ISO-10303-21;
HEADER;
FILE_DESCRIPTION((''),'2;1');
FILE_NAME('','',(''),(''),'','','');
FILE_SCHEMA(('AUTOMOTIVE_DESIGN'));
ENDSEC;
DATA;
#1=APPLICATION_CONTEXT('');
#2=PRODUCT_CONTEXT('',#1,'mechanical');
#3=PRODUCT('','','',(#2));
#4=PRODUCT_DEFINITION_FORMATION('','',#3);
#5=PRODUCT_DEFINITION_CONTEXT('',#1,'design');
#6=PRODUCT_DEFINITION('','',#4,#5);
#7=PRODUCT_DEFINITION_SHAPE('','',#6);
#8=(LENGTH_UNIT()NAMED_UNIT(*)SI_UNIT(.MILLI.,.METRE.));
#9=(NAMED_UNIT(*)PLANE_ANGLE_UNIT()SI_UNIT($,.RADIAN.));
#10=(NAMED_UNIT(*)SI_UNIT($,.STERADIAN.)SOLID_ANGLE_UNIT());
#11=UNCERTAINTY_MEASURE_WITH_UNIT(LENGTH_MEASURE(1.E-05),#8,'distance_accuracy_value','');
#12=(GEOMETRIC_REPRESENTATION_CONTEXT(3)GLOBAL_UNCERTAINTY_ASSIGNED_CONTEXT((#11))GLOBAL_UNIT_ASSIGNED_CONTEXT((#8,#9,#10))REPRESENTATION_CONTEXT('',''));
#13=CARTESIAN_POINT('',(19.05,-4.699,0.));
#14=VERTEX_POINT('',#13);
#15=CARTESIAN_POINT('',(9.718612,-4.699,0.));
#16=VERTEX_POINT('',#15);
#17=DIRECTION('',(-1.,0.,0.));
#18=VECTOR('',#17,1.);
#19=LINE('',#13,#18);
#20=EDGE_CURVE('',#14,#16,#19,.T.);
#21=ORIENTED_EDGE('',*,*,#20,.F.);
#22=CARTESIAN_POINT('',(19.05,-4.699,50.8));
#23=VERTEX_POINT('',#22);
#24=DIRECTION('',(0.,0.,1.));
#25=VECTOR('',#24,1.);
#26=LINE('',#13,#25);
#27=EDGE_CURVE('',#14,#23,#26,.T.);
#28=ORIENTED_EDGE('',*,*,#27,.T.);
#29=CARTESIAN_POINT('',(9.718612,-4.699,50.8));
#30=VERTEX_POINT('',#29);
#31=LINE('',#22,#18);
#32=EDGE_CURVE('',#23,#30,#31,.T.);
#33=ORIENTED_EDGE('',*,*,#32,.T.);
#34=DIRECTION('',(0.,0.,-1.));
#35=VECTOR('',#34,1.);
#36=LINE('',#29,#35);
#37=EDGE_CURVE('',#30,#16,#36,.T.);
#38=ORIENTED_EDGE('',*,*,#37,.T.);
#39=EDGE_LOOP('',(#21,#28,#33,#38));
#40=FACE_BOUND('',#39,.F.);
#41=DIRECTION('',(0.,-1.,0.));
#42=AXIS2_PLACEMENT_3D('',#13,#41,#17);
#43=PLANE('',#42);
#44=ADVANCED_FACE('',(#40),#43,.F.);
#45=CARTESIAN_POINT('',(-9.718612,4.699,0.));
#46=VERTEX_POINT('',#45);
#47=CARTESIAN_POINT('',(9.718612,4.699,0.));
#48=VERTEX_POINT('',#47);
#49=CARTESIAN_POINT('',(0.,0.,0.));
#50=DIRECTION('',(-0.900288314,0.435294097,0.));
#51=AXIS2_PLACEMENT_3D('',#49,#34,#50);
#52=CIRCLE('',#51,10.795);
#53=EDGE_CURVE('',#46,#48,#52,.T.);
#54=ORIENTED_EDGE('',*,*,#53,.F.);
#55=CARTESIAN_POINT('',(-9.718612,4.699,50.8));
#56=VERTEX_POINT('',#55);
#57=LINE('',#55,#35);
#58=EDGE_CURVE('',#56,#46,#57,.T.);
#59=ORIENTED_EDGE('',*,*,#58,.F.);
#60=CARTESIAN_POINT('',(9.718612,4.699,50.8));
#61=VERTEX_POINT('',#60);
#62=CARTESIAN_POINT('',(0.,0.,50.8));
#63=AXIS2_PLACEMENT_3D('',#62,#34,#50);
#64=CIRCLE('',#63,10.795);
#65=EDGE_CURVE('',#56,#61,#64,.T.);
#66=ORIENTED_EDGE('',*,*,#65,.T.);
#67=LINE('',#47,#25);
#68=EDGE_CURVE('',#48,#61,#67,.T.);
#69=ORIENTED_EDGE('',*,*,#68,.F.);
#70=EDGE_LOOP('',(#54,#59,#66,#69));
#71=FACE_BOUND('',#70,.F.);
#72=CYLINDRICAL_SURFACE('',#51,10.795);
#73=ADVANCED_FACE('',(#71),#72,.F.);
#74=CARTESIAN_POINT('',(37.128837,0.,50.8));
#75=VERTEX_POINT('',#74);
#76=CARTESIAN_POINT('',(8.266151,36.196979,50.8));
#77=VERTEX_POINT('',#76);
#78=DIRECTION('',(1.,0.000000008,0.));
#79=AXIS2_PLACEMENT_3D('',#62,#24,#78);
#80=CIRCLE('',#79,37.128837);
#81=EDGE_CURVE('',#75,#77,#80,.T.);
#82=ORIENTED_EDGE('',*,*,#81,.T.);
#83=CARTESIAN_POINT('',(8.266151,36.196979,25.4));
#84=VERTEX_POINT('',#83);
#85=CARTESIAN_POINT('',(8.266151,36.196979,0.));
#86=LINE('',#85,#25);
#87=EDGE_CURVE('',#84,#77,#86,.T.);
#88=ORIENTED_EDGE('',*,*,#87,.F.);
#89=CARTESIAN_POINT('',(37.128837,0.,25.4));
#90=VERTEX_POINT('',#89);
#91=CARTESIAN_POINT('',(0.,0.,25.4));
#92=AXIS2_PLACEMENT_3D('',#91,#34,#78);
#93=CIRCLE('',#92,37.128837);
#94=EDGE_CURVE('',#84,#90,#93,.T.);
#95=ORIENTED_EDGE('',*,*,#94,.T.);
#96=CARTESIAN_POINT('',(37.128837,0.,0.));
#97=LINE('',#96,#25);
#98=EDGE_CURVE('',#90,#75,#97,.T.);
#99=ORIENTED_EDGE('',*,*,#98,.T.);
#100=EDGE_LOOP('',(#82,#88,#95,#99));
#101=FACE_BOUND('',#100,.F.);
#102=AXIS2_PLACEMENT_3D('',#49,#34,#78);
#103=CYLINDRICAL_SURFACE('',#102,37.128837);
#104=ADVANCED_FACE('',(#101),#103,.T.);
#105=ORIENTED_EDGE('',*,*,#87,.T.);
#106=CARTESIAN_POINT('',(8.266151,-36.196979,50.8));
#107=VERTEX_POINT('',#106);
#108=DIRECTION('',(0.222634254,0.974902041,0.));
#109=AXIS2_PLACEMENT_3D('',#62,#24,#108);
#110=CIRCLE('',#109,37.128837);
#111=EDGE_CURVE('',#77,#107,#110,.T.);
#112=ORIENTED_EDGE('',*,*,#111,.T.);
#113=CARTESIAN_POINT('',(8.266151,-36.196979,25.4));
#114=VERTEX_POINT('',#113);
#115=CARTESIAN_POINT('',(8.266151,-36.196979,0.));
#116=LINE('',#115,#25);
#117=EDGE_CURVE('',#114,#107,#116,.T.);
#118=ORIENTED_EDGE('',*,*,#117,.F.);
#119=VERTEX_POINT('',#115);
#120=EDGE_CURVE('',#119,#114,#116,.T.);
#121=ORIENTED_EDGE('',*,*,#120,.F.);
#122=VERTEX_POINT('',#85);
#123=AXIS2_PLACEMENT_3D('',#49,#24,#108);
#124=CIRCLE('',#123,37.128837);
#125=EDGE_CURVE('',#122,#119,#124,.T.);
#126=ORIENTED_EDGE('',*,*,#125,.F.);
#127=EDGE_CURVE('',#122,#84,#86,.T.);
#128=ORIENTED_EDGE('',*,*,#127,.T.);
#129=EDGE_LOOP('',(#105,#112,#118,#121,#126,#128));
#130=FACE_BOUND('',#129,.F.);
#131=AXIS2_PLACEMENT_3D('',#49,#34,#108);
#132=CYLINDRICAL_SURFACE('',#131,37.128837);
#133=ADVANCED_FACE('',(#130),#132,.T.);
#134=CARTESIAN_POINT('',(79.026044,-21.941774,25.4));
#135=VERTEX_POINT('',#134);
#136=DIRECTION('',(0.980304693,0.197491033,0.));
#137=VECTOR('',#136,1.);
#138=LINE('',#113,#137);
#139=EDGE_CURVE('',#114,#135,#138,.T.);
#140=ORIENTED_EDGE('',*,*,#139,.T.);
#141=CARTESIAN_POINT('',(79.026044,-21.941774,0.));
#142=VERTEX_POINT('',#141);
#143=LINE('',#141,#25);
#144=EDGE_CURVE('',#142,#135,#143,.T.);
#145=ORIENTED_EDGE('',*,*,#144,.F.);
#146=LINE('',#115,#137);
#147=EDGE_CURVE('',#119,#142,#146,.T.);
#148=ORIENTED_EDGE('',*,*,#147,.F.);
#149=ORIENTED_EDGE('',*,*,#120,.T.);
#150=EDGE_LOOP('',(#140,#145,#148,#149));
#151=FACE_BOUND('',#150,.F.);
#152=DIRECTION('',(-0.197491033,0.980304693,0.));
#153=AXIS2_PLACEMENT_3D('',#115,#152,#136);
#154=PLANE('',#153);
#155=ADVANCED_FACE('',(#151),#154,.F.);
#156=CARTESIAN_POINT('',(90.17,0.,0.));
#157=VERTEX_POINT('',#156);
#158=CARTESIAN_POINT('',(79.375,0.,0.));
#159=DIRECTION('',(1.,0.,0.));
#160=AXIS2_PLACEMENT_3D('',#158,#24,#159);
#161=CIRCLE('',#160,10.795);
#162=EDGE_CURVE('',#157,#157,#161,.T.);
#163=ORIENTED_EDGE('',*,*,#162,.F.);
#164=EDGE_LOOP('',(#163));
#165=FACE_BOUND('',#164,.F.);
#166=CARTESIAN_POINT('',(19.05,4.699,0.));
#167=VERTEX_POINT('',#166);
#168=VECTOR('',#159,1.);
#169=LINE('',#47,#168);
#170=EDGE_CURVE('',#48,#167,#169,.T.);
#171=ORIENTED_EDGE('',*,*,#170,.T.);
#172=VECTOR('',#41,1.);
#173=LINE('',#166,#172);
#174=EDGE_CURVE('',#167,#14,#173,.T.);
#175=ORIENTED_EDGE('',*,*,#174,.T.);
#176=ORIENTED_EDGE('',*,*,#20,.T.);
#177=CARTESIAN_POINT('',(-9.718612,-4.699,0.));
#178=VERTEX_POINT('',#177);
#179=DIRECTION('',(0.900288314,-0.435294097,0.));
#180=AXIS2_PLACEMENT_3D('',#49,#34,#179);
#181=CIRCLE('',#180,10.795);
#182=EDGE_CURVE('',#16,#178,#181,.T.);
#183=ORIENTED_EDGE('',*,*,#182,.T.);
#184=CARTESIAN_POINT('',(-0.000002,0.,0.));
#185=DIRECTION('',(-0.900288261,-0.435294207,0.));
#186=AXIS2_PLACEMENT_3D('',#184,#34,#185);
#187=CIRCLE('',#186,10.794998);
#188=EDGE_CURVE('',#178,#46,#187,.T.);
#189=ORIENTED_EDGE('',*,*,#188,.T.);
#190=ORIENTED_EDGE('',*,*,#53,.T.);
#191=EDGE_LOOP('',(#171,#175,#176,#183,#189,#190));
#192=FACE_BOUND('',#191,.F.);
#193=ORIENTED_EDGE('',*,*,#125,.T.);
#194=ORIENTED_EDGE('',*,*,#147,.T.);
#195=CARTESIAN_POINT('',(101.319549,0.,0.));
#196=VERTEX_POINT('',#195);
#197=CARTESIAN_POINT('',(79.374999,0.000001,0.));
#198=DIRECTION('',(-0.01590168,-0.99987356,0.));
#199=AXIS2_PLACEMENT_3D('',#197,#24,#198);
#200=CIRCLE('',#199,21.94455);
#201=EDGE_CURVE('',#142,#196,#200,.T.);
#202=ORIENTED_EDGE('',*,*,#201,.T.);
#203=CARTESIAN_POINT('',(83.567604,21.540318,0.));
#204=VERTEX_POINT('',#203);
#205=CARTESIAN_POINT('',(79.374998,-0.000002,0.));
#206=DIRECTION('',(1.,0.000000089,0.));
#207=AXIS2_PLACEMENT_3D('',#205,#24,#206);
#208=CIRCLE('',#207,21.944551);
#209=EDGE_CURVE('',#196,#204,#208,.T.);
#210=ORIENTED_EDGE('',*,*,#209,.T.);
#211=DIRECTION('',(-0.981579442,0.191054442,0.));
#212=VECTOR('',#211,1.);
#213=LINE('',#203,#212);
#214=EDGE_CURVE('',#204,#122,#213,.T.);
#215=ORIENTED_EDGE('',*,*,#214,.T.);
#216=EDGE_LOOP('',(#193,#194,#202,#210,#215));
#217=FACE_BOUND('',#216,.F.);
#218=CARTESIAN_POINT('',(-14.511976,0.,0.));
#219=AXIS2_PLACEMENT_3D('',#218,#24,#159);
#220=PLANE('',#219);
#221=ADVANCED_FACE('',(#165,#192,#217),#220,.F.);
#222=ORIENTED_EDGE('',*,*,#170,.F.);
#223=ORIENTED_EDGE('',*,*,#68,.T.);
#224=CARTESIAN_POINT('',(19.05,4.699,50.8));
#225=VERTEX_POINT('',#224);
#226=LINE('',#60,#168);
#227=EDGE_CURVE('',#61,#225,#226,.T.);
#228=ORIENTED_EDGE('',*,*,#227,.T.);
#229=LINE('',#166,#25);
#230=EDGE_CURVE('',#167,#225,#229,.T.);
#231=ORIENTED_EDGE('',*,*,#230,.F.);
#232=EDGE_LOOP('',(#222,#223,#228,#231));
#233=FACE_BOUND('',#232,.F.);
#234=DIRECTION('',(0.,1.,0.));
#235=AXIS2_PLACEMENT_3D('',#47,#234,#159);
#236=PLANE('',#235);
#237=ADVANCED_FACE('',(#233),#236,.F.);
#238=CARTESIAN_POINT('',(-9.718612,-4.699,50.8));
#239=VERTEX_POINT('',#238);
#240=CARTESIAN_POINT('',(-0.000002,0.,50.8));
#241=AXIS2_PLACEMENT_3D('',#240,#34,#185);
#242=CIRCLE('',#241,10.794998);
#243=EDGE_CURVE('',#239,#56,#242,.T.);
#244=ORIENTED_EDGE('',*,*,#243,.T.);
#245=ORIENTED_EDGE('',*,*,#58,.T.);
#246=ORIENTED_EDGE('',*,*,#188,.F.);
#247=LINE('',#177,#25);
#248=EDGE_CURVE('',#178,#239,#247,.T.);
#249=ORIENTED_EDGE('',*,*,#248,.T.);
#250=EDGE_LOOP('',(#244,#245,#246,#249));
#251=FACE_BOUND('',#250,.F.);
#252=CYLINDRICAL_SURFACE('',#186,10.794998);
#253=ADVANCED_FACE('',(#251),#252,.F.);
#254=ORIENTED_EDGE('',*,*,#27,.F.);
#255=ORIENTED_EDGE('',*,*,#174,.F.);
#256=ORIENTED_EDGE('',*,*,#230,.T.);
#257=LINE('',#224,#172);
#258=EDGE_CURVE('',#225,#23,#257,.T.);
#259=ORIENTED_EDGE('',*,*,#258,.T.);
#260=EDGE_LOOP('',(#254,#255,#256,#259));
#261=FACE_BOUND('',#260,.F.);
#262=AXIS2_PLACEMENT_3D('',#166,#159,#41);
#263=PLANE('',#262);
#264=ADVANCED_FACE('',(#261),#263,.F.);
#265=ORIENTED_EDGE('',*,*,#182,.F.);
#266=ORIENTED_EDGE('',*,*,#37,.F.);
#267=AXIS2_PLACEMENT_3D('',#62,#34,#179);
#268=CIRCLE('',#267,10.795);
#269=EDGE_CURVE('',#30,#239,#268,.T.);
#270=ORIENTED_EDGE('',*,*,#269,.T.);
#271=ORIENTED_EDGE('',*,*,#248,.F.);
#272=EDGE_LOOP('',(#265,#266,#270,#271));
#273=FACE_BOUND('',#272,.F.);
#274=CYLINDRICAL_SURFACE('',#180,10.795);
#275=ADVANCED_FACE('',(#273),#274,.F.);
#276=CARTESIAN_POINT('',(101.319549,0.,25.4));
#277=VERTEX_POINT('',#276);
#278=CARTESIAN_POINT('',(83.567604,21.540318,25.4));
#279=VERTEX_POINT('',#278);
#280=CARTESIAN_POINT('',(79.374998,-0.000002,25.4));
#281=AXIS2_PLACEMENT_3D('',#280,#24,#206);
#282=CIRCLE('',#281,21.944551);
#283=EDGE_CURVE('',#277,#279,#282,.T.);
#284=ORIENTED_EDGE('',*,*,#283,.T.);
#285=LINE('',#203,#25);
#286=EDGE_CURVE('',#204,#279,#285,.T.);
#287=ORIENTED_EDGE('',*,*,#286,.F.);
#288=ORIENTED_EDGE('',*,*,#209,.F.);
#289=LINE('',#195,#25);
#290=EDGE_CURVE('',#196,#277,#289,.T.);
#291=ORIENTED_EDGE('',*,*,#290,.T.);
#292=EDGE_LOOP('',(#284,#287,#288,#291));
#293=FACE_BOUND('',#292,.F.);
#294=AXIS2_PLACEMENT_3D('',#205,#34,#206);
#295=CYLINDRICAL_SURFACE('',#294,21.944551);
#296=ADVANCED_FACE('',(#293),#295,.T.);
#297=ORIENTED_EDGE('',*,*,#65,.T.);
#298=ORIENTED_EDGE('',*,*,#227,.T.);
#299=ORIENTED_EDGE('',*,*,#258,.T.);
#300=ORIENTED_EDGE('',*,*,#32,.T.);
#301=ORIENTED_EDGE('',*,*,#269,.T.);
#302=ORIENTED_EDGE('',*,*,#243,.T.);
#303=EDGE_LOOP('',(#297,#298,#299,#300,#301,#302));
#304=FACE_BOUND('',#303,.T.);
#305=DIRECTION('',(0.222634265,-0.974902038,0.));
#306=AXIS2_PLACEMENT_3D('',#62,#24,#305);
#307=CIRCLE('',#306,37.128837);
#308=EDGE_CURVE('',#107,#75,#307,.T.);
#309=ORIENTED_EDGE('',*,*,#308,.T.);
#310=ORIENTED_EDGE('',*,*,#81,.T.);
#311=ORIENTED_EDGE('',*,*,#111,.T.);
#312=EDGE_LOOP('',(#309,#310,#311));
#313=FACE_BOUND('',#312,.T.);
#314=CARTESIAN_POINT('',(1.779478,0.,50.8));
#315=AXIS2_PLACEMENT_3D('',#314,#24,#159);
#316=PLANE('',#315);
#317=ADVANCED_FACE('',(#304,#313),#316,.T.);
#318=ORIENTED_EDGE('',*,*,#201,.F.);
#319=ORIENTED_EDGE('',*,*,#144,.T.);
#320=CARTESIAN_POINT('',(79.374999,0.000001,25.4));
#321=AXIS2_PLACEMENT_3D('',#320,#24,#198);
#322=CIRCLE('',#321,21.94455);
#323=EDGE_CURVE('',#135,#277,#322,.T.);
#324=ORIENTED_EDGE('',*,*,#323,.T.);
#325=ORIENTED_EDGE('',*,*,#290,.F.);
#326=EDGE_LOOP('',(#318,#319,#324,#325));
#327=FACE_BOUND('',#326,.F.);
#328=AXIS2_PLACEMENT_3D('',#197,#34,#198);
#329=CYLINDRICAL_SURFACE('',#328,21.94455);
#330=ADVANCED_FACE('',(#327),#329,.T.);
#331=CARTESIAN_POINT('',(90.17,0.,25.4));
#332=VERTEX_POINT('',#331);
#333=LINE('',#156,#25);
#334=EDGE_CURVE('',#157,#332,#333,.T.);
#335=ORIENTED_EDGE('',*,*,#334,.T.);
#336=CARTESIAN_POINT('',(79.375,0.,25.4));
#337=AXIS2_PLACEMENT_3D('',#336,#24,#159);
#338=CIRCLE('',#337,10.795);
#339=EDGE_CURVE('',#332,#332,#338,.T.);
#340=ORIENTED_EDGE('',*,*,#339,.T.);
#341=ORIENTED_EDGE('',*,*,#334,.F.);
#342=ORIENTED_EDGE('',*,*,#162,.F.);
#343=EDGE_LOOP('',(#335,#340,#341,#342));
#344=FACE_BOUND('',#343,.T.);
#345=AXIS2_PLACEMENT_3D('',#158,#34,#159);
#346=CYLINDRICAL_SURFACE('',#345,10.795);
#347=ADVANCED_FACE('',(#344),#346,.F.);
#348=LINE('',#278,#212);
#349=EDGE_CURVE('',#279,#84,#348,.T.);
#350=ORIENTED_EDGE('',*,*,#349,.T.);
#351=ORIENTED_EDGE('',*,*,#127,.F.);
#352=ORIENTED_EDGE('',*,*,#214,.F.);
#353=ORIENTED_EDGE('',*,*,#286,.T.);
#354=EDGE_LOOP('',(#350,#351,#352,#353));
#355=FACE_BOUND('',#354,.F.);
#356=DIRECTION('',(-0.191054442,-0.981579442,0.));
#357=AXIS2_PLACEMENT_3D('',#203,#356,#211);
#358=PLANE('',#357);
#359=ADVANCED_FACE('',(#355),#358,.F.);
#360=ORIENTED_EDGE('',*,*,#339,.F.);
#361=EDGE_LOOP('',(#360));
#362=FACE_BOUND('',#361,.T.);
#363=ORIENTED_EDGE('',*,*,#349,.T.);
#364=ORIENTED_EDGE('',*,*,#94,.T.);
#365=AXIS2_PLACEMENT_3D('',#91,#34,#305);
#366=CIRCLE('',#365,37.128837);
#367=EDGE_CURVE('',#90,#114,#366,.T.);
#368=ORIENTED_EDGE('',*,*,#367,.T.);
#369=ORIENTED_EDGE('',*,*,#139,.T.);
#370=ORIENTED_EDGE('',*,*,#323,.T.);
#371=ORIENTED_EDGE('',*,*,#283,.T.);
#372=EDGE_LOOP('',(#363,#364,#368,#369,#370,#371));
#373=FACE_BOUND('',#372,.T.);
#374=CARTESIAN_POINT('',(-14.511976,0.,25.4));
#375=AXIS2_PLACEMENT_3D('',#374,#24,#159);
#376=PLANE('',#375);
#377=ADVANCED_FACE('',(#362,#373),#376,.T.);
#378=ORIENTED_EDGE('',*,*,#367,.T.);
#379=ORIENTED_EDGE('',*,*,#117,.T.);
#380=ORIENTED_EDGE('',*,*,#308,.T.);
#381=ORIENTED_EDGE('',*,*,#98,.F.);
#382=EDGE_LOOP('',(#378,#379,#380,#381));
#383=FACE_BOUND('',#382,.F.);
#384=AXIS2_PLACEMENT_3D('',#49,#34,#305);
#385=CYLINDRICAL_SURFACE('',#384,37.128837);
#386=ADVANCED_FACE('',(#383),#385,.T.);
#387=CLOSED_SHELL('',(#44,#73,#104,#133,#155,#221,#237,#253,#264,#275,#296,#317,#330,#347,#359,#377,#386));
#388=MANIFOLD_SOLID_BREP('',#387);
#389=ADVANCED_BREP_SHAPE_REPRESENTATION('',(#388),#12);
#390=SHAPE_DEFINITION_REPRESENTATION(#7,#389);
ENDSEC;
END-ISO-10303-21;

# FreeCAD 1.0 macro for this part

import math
import FreeCAD as App
import Part
import Sketcher

V = App.Vector
Q = App.Units.Quantity

doc = App.newDocument("Part")
body = doc.addObject("PartDesign::Body", "Body")

sketch1 = body.newObject("Sketcher::SketchObject", "Sketch")
sketch1.AttachmentSupport = (doc.getObject("XY_Plane"), [""])
sketch1.MapMode = "FlatFace"
sketch1.addGeometry([
    Part.ArcOfCircle(Part.Circle(V(0, 0, 0), V(0, 0, 1), 37), math.radians(77), math.radians(283)),
    Part.LineSegment(V(8, -36, 0), V(79, -22, 0)),
    Part.ArcOfCircle(Part.Circle(V(79, 0, 0), V(0, 0, 1), 22), math.radians(-91), math.radians(0)),
    Part.ArcOfCircle(Part.Circle(V(79, 0, 0), V(0, 0, 1), 22), math.radians(0), math.radians(79)),
    Part.LineSegment(V(84, 22, 0), V(8, 36, 0)),
    Part.LineSegment(V(-19, 5, 0), V(-10, 5, 0)),
    Part.ArcOfCircle(Part.Circle(V(0, 0, 0), V(0, 0, 1), 11), math.radians(26), math.radians(154)),
    Part.LineSegment(V(10, 5, 0), V(19, 5, 0)),
    Part.LineSegment(V(19, 5, 0), V(19, -5, 0)),
    Part.LineSegment(V(19, -5, 0), V(10, -5, 0)),
    Part.ArcOfCircle(Part.Circle(V(0, 0, 0), V(0, 0, 1), 11), math.radians(-154), math.radians(-26)),
    Part.LineSegment(V(-10, -5, 0), V(-19, -5, 0)),
    Part.LineSegment(V(-19, -5, 0), V(-19, 5, 0)),
    Part.Circle(V(79, 0, 0), V(0, 0, 1), 11),
], False)
sketch1.addConstraint([
    Sketcher.Constraint("Coincident", 0, 2, 1, 1),
    Sketcher.Constraint("Coincident", 1, 2, 2, 1),
    Sketcher.Constraint("Tangent", 2, 2, 3, 1),
    Sketcher.Constraint("Tangent", 3, 2, 4, 1),
    Sketcher.Constraint("Coincident", 4, 2, 0, 1),
    Sketcher.Constraint("Coincident", 5, 2, 6, 2),
    Sketcher.Constraint("Coincident", 6, 1, 7, 1),
    Sketcher.Constraint("Coincident", 7, 2, 8, 1),
    Sketcher.Constraint("Coincident", 8, 2, 9, 1),
    Sketcher.Constraint("Coincident", 9, 2, 10, 2),
    Sketcher.Constraint("Coincident", 10, 1, 11, 1),
    Sketcher.Constraint("Coincident", 11, 2, 12, 1),
    Sketcher.Constraint("Coincident", 12, 2, 5, 1),
    Sketcher.Constraint("Horizontal", 5),
    Sketcher.Constraint("Horizontal", 7),
    Sketcher.Constraint("Vertical", 8),
    Sketcher.Constraint("Horizontal", 9),
    Sketcher.Constraint("Horizontal", 11),
    Sketcher.Constraint("Vertical", 12),
    Sketcher.Constraint("Coincident", 0, 3, -1, 1),
    Sketcher.Constraint("Coincident", 6, 3, -1, 1),
    Sketcher.Constraint("Coincident", 10, 3, -1, 1),
    Sketcher.Constraint("Coincident", 13, 3, 2, 3),
    Sketcher.Constraint("Equal", 2, 3),
    Sketcher.Constraint("Equal", 6, 10),
    Sketcher.Constraint("Equal", 10, 13),
    Sketcher.Constraint("Symmetric", 7, 2, 11, 2, -1, 1),
    Sketcher.Constraint("PointOnObject", 2, 3, -1),
    Sketcher.Constraint("PointOnObject", 2, 2, -1),
    Sketcher.Constraint("Horizontal", 5, 2, 6, 1),
    Sketcher.Constraint("Horizontal", 9, 2, 10, 1),
    Sketcher.Constraint("Vertical", 0, 2, 4, 2),
    Sketcher.Constraint("Diameter", 13, Q("0.85 in")),
    Sketcher.Constraint("DistanceY", 8, 2, 8, 1, Q("0.37 in")),
    Sketcher.Constraint("DistanceX", -1, 1, 7, 2, Q("0.75 in")),
    Sketcher.Constraint("DistanceX", -1, 1, 2, 3, Q("3.125 in")),
    Sketcher.Constraint("Radius", 2, Q("21.94455 mm")),
    Sketcher.Constraint("Radius", 0, Q("37.128837 mm")),
    Sketcher.Constraint("DistanceX", 0, 2, 2, 2, Q("93.053398 mm")),
    Sketcher.Constraint("Distance", 1, Q("72.18153 mm")),
])
pad1 = body.newObject("PartDesign::Pad", "Pad")
pad1.Profile = sketch1
pad1.Length = Q("1 in")

sketch2 = body.newObject("Sketcher::SketchObject", "Sketch001")
sketch2.AttachmentSupport = (doc.getObject("XY_Plane"), [""])
sketch2.MapMode = "FlatFace"
sketch2.addGeometry([
    Part.ArcOfCircle(Part.Circle(V(0, 0, 0), V(0, 0, 1), 37), math.radians(-77), math.radians(0)),
    Part.ArcOfCircle(Part.Circle(V(0, 0, 0), V(0, 0, 1), 37), math.radians(0), math.radians(77)),
    Part.ArcOfCircle(Part.Circle(V(0, 0, 0), V(0, 0, 1), 37), math.radians(77), math.radians(283)),
    Part.ArcOfCircle(Part.Circle(V(0, 0, 0), V(0, 0, 1), 11), math.radians(-154), math.radians(-26)),
    Part.ArcOfCircle(Part.Circle(V(0, 0, 0), V(0, 0, 1), 11), math.radians(154), math.radians(206)),
    Part.ArcOfCircle(Part.Circle(V(0, 0, 0), V(0, 0, 1), 11), math.radians(26), math.radians(154)),
    Part.LineSegment(V(10, 5, 0), V(19, 5, 0)),
    Part.LineSegment(V(19, 5, 0), V(19, -5, 0)),
    Part.LineSegment(V(19, -5, 0), V(10, -5, 0)),
], False)
sketch2.addConstraint([
    Sketcher.Constraint("Tangent", 0, 2, 1, 1),
    Sketcher.Constraint("Tangent", 1, 2, 2, 1),
    Sketcher.Constraint("Tangent", 2, 2, 0, 1),
    Sketcher.Constraint("Tangent", 3, 1, 4, 2),
    Sketcher.Constraint("Tangent", 4, 1, 5, 2),
    Sketcher.Constraint("Coincident", 5, 1, 6, 1),
    Sketcher.Constraint("Coincident", 6, 2, 7, 1),
    Sketcher.Constraint("Coincident", 7, 2, 8, 1),
    Sketcher.Constraint("Coincident", 8, 2, 3, 2),
    Sketcher.Constraint("Horizontal", 6),
    Sketcher.Constraint("Vertical", 7),
    Sketcher.Constraint("Horizontal", 8),
    Sketcher.Constraint("Coincident", 0, 3, -1, 1),
    Sketcher.Constraint("Coincident", 3, 3, -1, 1),
    Sketcher.Constraint("Coincident", 5, 3, -1, 1),
    Sketcher.Constraint("PointOnObject", 0, 2, -1),
    Sketcher.Constraint("Horizontal", 4, 1, 5, 1),
    Sketcher.Constraint("Horizontal", 3, 1, 7, 2),
    Sketcher.Constraint("Vertical", 1, 2, 2, 2),
    Sketcher.Constraint("Vertical", 3, 1, 4, 1),
    Sketcher.Constraint("Radius", 3, Q("0.425 in")),
    Sketcher.Constraint("DistanceY", 7, 2, 7, 1, Q("0.37 in")),
    Sketcher.Constraint("DistanceX", -1, 1, 6, 2, Q("0.75 in")),
    Sketcher.Constraint("Radius", 0, Q("37.128837 mm")),
    Sketcher.Constraint("DistanceX", -1, 1, 1, 2, Q("8.266151 mm")),
])
pad2 = body.newObject("PartDesign::Pad", "Pad001")
pad2.Profile = sketch2
pad2.Length = Q("2 in")

doc.recompute()
